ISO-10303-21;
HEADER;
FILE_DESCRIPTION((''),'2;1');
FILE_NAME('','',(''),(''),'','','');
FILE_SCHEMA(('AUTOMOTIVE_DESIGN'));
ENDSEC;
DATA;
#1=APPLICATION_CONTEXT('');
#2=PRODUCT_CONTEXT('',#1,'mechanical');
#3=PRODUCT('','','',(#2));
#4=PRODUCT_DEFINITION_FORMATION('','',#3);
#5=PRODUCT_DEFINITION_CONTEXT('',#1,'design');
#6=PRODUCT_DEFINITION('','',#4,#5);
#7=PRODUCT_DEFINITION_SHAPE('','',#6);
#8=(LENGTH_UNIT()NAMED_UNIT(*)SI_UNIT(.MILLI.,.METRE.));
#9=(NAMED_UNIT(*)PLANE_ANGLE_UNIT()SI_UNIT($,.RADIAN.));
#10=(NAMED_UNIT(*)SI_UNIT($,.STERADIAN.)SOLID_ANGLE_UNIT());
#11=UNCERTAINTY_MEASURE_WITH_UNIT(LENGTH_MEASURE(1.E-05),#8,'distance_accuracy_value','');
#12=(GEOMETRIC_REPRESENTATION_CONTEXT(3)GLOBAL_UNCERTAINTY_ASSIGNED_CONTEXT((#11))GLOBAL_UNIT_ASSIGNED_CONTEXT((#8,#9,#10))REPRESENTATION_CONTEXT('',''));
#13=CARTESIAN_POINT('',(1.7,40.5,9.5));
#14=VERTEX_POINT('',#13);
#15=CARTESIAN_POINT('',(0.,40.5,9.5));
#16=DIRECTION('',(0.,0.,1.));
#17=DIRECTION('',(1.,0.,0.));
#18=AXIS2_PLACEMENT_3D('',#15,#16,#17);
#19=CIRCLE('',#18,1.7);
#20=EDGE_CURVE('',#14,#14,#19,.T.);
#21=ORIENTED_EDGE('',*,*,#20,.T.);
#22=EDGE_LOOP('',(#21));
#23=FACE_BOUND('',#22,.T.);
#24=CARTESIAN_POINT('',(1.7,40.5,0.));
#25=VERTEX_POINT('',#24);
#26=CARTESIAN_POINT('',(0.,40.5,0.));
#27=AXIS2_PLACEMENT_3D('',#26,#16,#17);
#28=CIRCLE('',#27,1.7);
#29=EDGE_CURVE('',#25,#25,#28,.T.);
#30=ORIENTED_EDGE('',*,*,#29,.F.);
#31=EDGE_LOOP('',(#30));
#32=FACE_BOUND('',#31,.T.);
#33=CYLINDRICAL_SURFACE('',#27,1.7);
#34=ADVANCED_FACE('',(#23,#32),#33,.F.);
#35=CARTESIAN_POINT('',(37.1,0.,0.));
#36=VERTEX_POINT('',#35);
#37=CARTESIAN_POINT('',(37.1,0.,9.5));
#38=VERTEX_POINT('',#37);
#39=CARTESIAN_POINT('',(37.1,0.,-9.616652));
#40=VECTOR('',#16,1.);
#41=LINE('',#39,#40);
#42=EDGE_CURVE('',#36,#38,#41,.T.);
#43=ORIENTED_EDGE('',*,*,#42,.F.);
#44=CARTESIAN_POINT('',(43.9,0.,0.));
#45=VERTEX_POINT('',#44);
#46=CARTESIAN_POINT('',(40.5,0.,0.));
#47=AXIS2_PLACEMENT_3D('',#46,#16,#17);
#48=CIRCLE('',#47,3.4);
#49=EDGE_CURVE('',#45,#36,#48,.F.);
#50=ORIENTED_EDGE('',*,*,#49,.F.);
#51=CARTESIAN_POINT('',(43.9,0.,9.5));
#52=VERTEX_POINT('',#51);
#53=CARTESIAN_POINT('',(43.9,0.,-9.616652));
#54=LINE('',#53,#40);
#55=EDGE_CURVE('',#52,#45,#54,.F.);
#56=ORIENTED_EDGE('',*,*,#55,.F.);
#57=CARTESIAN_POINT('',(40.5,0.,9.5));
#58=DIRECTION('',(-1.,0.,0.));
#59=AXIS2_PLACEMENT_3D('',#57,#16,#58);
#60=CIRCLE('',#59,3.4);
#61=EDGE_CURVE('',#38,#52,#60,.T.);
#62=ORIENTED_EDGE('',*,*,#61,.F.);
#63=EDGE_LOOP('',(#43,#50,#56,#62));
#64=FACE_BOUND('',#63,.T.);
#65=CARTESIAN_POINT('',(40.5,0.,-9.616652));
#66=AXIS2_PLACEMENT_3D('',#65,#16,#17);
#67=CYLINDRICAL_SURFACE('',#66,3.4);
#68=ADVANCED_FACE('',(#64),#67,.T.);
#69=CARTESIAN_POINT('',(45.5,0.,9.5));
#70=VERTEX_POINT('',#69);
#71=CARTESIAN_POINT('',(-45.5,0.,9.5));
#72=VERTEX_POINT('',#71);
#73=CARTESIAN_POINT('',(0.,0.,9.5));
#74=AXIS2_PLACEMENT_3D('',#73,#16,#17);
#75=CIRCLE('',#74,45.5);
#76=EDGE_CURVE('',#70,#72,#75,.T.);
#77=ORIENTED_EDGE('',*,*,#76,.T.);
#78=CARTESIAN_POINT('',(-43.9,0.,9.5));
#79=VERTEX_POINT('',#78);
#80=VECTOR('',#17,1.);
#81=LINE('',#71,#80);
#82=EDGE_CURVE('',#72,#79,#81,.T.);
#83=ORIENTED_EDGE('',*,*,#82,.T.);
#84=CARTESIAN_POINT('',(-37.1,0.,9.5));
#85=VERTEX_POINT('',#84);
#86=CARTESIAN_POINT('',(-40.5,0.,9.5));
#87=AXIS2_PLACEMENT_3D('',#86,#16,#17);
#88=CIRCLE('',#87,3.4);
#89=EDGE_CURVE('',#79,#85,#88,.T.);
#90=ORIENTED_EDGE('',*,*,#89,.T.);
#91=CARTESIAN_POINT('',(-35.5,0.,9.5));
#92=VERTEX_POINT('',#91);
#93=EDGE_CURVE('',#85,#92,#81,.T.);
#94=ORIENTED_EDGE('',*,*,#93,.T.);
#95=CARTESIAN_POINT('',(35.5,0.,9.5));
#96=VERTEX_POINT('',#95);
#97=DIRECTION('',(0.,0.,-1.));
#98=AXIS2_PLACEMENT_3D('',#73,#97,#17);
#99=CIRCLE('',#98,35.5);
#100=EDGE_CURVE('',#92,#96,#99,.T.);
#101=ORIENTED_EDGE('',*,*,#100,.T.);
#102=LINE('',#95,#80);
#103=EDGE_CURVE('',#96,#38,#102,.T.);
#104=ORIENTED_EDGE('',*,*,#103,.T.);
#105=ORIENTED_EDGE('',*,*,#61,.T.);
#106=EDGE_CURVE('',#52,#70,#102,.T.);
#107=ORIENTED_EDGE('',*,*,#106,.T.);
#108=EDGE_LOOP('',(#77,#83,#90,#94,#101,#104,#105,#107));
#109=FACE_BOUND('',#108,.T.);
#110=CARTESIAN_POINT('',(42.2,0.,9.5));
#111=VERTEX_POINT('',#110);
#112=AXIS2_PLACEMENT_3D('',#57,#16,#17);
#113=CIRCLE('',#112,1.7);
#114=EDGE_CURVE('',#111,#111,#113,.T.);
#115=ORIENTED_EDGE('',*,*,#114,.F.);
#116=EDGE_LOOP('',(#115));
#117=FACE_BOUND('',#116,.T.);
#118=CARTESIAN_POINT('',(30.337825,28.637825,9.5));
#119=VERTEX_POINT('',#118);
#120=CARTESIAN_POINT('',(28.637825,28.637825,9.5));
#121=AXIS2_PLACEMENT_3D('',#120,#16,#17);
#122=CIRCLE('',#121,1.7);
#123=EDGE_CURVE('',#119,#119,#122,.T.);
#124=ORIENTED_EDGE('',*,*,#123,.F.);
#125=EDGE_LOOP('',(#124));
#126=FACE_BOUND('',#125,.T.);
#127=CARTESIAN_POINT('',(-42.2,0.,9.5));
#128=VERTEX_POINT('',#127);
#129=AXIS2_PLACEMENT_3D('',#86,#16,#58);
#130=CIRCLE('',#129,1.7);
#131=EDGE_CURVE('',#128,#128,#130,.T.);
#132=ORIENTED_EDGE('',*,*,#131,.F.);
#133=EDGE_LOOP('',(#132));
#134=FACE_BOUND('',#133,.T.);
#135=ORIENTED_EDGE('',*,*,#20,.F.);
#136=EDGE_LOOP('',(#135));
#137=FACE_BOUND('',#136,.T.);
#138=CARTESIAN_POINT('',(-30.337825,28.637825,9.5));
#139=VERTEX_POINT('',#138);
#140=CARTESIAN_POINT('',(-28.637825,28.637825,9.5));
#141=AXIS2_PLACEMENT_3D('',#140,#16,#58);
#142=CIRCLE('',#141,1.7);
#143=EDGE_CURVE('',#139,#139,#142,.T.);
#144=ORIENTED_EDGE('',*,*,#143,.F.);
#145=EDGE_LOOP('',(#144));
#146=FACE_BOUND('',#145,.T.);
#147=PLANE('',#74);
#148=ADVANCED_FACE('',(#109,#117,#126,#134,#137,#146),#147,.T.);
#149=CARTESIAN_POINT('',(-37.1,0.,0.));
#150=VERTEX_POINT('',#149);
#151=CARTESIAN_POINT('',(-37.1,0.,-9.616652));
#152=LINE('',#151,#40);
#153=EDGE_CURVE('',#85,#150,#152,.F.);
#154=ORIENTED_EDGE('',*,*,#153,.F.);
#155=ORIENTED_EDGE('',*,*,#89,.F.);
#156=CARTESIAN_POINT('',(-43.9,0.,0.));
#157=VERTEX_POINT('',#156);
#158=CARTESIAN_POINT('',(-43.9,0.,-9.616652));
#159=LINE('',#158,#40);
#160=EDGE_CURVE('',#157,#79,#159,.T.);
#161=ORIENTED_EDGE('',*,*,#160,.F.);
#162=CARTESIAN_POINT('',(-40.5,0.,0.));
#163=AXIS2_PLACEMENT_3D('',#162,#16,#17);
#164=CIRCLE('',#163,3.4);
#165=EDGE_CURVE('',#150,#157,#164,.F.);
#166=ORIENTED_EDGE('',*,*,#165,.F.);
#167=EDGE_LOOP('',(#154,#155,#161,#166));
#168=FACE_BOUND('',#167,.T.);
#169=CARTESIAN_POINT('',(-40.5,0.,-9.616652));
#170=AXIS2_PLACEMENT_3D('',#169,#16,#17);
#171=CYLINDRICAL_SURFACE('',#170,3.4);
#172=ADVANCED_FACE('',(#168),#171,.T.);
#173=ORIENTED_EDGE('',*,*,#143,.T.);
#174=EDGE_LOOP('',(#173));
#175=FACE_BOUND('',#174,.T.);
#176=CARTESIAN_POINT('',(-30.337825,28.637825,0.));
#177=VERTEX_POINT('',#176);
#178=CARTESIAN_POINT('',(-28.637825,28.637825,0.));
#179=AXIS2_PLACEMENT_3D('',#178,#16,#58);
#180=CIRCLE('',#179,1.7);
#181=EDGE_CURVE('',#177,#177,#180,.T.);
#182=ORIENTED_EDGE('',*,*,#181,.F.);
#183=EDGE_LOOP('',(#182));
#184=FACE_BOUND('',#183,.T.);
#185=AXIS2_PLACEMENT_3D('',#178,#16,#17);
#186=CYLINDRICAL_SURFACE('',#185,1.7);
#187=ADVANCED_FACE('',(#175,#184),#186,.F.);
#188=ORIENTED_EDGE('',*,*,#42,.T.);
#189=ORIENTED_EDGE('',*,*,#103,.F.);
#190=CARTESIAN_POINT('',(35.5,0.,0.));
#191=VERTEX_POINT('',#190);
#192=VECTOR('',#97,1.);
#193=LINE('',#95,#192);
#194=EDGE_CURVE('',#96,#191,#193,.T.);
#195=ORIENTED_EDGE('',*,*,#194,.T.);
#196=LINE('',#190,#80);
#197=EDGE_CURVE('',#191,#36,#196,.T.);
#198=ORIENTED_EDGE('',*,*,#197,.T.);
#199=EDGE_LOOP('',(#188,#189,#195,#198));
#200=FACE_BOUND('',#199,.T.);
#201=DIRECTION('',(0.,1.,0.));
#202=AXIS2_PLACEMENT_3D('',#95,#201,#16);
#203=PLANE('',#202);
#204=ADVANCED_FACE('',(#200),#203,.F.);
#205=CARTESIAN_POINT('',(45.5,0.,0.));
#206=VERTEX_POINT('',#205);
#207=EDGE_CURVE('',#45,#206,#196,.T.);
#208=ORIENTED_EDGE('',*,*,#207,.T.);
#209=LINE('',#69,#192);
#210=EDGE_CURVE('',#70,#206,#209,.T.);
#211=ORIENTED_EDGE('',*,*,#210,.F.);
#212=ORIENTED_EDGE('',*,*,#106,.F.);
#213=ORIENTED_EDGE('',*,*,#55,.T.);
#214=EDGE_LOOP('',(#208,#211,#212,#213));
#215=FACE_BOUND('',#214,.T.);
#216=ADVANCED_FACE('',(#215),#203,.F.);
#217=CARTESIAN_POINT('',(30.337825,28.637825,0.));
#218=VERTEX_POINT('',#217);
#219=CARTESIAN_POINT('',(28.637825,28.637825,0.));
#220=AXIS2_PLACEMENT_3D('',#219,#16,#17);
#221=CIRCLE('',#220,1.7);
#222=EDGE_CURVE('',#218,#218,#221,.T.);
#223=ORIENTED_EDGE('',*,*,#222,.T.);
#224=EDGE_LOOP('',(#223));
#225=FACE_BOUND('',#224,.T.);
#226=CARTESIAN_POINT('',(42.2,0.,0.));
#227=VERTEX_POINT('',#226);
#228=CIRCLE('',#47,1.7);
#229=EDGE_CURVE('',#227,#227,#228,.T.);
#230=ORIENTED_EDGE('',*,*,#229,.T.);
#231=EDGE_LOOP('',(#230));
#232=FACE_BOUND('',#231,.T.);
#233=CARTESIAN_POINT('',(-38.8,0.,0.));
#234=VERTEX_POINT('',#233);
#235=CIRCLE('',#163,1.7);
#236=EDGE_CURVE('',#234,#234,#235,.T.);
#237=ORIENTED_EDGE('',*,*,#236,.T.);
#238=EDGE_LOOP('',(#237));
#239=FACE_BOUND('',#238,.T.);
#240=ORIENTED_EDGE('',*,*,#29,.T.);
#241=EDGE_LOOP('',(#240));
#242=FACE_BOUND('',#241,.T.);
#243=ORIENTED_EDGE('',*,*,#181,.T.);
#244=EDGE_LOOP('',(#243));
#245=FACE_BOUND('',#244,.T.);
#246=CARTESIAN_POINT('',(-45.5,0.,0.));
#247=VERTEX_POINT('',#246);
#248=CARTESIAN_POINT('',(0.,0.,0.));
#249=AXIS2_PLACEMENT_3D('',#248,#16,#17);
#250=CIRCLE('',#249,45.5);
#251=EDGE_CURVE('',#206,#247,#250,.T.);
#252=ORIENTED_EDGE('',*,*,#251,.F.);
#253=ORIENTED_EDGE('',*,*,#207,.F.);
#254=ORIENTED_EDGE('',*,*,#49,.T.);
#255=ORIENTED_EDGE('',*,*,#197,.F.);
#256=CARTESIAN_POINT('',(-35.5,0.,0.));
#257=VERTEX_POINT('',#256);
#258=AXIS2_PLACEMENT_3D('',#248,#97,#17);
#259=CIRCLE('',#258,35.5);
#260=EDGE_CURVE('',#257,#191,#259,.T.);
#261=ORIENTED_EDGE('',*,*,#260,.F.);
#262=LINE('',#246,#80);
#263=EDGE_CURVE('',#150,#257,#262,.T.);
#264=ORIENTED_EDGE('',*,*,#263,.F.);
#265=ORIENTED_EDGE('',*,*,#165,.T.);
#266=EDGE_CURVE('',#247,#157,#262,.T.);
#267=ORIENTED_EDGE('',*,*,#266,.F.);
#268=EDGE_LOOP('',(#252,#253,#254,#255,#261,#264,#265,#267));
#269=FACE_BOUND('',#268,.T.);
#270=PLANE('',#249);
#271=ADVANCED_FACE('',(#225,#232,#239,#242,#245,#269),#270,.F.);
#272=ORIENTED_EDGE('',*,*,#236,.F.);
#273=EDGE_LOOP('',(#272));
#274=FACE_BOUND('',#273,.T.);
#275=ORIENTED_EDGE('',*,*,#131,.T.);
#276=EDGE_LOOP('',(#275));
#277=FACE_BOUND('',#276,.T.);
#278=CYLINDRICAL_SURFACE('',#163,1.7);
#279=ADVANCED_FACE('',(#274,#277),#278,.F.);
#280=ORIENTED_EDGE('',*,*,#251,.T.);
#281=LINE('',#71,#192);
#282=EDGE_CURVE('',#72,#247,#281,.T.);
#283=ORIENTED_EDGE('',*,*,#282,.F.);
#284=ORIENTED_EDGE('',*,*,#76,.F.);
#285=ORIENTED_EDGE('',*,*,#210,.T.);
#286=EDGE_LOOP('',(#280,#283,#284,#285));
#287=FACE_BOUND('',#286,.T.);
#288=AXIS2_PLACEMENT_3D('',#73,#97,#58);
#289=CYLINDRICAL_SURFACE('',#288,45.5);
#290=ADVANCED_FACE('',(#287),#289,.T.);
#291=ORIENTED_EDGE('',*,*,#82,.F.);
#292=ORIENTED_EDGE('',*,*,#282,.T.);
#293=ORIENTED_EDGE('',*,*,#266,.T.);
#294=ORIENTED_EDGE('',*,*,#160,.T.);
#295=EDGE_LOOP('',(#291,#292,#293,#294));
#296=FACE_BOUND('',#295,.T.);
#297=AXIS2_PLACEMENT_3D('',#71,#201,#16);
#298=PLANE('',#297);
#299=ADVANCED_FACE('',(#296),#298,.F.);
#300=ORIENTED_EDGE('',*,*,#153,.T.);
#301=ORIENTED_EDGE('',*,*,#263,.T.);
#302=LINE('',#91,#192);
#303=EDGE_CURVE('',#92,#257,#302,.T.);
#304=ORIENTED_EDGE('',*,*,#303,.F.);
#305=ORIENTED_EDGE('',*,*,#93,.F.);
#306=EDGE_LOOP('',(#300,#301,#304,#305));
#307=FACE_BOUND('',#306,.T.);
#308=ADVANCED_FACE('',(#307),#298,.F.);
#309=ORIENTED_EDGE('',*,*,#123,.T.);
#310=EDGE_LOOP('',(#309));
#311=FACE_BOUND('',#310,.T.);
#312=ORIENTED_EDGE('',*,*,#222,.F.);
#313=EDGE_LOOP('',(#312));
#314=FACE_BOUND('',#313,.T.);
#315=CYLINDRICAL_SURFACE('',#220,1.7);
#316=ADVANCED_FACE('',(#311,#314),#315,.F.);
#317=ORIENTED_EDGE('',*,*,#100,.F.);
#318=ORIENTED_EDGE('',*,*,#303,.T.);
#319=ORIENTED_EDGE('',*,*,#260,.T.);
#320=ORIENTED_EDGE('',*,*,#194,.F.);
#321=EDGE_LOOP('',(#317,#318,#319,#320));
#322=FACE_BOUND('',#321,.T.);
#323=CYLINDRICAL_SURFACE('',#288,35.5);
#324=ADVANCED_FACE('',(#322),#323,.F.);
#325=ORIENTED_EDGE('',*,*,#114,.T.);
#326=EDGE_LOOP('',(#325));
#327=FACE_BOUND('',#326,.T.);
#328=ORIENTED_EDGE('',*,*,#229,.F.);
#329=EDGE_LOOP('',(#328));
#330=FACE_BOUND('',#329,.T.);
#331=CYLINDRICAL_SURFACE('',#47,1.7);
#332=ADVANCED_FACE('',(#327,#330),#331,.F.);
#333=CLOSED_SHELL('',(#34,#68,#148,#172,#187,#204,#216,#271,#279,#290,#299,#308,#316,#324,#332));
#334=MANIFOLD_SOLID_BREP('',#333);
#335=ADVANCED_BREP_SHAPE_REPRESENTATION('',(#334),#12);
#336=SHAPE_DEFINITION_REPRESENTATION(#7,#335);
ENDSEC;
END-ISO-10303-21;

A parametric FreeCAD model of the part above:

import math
import FreeCAD as App
import Part
import Sketcher
from FreeCAD import Vector
Q = App.Units.Quantity

doc = App.newDocument("Part")
body = doc.addObject("PartDesign::Body", "Body")

sketch1 = body.newObject("Sketcher::SketchObject", "Sketch")
sketch1.AttachmentSupport = (doc.getObject("XY_Plane"), [""])
sketch1.MapMode = "FlatFace"
sketch1.addGeometry(Part.LineSegment(Vector(-45.5, 0, 0), Vector(-35.5, 0, 0)), False)
sketch1.addGeometry(Part.ArcOfCircle(Part.Circle(Vector(0, 0, 0), Vector(0, 0, 1), 35.5), math.radians(0), math.radians(180)), False)
sketch1.addGeometry(Part.LineSegment(Vector(35.5, 0, 0), Vector(45.5, 0, 0)), False)
sketch1.addGeometry(Part.ArcOfCircle(Part.Circle(Vector(0, 0, 0), Vector(0, 0, 1), 45.5), math.radians(0), math.radians(180)), False)
sketch1.addConstraint(Sketcher.Constraint("Coincident", 0, 2, 1, 2))
sketch1.addConstraint(Sketcher.Constraint("Coincident", 1, 1, 2, 1))
sketch1.addConstraint(Sketcher.Constraint("Coincident", 2, 2, 3, 1))
sketch1.addConstraint(Sketcher.Constraint("Coincident", 3, 2, 0, 1))
sketch1.addConstraint(Sketcher.Constraint("Horizontal", 0))
sketch1.addConstraint(Sketcher.Constraint("Horizontal", 2))
sketch1.addConstraint(Sketcher.Constraint("Coincident", 1, 3, -1, 1))
sketch1.addConstraint(Sketcher.Constraint("Coincident", 3, 3, -1, 1))
sketch1.addConstraint(Sketcher.Constraint("PointOnObject", 0, 2, -1))
sketch1.addConstraint(Sketcher.Constraint("PointOnObject", 1, 1, -1))
sketch1.addConstraint(Sketcher.Constraint("Radius", 1, Q("35.5 mm")))
sketch1.addConstraint(Sketcher.Constraint("Radius", 3, Q("45.5 mm")))
pad1 = body.newObject("PartDesign::Pad", "Pad")
pad1.Profile = sketch1
pad1.Length = 9.5

sketch2 = body.newObject("Sketcher::SketchObject", "Sketch001")
sketch2.AttachmentSupport = (doc.getObject("XY_Plane"), [""])
sketch2.MapMode = "FlatFace"
sketch2.AttachmentOffset = App.Placement(Vector(0, 0, 9.5), App.Rotation())
sketch2.addGeometry(Part.Circle(Vector(0, 40.5, 0), Vector(0, 0, 1), 1.7), False)
sketch2.addGeometry(Part.Circle(Vector(28.637825, 28.637825, 0), Vector(0, 0, 1), 1.7), False)
sketch2.addGeometry(Part.Circle(Vector(40.5, 0, 0), Vector(0, 0, 1), 1.7), False)
sketch2.addGeometry(Part.Circle(Vector(-40.5, 0, 0), Vector(0, 0, 1), 1.7), False)
sketch2.addGeometry(Part.Circle(Vector(-28.637825, 28.637825, 0), Vector(0, 0, 1), 1.7), False)
sketch2.addConstraint(Sketcher.Constraint("Equal", 0, 1))
sketch2.addConstraint(Sketcher.Constraint("Equal", 1, 2))
sketch2.addConstraint(Sketcher.Constraint("Equal", 2, 3))
sketch2.addConstraint(Sketcher.Constraint("Equal", 3, 4))
sketch2.addConstraint(Sketcher.Constraint("Symmetric", 2, 3, 3, 3, -1, 1))
sketch2.addConstraint(Sketcher.Constraint("Symmetric", 1, 3, 4, 3, -2))
sketch2.addConstraint(Sketcher.Constraint("PointOnObject", 0, 3, -2))
sketch2.addConstraint(Sketcher.Constraint("PointOnObject", 2, 3, -1))
sketch2.addConstraint(Sketcher.Constraint("Diameter", 0, Q("3.4 mm")))
sketch2.addConstraint(Sketcher.Constraint("DistanceX", 3, 3, 2, 3, Q("81 mm")))
sketch2.addConstraint(Sketcher.Constraint("DistanceY", -1, 1, 0, 3, Q("40.5 mm")))
sketch2.addConstraint(Sketcher.Constraint("DistanceX", 4, 3, 1, 3, Q("57.275649 mm")))
sketch2.addConstraint(Sketcher.Constraint("DistanceY", -1, 1, 1, 3, Q("28.637825 mm")))
pocket1 = body.newObject("PartDesign::Pocket", "Pocket")
pocket1.Profile = sketch2
pocket1.Type = "ThroughAll"

sketch3 = body.newObject("Sketcher::SketchObject", "Sketch002")
sketch3.AttachmentSupport = (doc.getObject("XY_Plane"), [""])
sketch3.MapMode = "FlatFace"
sketch3.AttachmentOffset = App.Placement(Vector(0, 0, 9.5), App.Rotation())
sketch3.addGeometry(Part.Circle(Vector(-40.5, 0, 0), Vector(0, 0, 1), 3.4), False)
sketch3.addGeometry(Part.Circle(Vector(-40.5, 0, 0), Vector(0, 0, 1), 1.7), False)
sketch3.addGeometry(Part.Circle(Vector(40.5, 0, 0), Vector(0, 0, 1), 3.4), False)
sketch3.addGeometry(Part.Circle(Vector(40.5, 0, 0), Vector(0, 0, 1), 1.7), False)
sketch3.addConstraint(Sketcher.Constraint("Coincident", 1, 3, 0, 3))
sketch3.addConstraint(Sketcher.Constraint("Coincident", 3, 3, 2, 3))
sketch3.addConstraint(Sketcher.Constraint("Equal", 0, 2))
sketch3.addConstraint(Sketcher.Constraint("Equal", 1, 3))
sketch3.addConstraint(Sketcher.Constraint("Symmetric", 0, 3, 2, 3, -1, 1))
sketch3.addConstraint(Sketcher.Constraint("PointOnObject", 0, 3, -1))
sketch3.addConstraint(Sketcher.Constraint("Diameter", 0, Q("6.8 mm")))
sketch3.addConstraint(Sketcher.Constraint("Diameter", 1, Q("3.4 mm")))
sketch3.addConstraint(Sketcher.Constraint("DistanceX", 0, 3, 2, 3, Q("81 mm")))
pad2 = body.newObject("PartDesign::Pad", "Pad001")
pad2.Profile = sketch3
pad2.Length = 9.5
pad2.Reversed = True

doc.recompute()
